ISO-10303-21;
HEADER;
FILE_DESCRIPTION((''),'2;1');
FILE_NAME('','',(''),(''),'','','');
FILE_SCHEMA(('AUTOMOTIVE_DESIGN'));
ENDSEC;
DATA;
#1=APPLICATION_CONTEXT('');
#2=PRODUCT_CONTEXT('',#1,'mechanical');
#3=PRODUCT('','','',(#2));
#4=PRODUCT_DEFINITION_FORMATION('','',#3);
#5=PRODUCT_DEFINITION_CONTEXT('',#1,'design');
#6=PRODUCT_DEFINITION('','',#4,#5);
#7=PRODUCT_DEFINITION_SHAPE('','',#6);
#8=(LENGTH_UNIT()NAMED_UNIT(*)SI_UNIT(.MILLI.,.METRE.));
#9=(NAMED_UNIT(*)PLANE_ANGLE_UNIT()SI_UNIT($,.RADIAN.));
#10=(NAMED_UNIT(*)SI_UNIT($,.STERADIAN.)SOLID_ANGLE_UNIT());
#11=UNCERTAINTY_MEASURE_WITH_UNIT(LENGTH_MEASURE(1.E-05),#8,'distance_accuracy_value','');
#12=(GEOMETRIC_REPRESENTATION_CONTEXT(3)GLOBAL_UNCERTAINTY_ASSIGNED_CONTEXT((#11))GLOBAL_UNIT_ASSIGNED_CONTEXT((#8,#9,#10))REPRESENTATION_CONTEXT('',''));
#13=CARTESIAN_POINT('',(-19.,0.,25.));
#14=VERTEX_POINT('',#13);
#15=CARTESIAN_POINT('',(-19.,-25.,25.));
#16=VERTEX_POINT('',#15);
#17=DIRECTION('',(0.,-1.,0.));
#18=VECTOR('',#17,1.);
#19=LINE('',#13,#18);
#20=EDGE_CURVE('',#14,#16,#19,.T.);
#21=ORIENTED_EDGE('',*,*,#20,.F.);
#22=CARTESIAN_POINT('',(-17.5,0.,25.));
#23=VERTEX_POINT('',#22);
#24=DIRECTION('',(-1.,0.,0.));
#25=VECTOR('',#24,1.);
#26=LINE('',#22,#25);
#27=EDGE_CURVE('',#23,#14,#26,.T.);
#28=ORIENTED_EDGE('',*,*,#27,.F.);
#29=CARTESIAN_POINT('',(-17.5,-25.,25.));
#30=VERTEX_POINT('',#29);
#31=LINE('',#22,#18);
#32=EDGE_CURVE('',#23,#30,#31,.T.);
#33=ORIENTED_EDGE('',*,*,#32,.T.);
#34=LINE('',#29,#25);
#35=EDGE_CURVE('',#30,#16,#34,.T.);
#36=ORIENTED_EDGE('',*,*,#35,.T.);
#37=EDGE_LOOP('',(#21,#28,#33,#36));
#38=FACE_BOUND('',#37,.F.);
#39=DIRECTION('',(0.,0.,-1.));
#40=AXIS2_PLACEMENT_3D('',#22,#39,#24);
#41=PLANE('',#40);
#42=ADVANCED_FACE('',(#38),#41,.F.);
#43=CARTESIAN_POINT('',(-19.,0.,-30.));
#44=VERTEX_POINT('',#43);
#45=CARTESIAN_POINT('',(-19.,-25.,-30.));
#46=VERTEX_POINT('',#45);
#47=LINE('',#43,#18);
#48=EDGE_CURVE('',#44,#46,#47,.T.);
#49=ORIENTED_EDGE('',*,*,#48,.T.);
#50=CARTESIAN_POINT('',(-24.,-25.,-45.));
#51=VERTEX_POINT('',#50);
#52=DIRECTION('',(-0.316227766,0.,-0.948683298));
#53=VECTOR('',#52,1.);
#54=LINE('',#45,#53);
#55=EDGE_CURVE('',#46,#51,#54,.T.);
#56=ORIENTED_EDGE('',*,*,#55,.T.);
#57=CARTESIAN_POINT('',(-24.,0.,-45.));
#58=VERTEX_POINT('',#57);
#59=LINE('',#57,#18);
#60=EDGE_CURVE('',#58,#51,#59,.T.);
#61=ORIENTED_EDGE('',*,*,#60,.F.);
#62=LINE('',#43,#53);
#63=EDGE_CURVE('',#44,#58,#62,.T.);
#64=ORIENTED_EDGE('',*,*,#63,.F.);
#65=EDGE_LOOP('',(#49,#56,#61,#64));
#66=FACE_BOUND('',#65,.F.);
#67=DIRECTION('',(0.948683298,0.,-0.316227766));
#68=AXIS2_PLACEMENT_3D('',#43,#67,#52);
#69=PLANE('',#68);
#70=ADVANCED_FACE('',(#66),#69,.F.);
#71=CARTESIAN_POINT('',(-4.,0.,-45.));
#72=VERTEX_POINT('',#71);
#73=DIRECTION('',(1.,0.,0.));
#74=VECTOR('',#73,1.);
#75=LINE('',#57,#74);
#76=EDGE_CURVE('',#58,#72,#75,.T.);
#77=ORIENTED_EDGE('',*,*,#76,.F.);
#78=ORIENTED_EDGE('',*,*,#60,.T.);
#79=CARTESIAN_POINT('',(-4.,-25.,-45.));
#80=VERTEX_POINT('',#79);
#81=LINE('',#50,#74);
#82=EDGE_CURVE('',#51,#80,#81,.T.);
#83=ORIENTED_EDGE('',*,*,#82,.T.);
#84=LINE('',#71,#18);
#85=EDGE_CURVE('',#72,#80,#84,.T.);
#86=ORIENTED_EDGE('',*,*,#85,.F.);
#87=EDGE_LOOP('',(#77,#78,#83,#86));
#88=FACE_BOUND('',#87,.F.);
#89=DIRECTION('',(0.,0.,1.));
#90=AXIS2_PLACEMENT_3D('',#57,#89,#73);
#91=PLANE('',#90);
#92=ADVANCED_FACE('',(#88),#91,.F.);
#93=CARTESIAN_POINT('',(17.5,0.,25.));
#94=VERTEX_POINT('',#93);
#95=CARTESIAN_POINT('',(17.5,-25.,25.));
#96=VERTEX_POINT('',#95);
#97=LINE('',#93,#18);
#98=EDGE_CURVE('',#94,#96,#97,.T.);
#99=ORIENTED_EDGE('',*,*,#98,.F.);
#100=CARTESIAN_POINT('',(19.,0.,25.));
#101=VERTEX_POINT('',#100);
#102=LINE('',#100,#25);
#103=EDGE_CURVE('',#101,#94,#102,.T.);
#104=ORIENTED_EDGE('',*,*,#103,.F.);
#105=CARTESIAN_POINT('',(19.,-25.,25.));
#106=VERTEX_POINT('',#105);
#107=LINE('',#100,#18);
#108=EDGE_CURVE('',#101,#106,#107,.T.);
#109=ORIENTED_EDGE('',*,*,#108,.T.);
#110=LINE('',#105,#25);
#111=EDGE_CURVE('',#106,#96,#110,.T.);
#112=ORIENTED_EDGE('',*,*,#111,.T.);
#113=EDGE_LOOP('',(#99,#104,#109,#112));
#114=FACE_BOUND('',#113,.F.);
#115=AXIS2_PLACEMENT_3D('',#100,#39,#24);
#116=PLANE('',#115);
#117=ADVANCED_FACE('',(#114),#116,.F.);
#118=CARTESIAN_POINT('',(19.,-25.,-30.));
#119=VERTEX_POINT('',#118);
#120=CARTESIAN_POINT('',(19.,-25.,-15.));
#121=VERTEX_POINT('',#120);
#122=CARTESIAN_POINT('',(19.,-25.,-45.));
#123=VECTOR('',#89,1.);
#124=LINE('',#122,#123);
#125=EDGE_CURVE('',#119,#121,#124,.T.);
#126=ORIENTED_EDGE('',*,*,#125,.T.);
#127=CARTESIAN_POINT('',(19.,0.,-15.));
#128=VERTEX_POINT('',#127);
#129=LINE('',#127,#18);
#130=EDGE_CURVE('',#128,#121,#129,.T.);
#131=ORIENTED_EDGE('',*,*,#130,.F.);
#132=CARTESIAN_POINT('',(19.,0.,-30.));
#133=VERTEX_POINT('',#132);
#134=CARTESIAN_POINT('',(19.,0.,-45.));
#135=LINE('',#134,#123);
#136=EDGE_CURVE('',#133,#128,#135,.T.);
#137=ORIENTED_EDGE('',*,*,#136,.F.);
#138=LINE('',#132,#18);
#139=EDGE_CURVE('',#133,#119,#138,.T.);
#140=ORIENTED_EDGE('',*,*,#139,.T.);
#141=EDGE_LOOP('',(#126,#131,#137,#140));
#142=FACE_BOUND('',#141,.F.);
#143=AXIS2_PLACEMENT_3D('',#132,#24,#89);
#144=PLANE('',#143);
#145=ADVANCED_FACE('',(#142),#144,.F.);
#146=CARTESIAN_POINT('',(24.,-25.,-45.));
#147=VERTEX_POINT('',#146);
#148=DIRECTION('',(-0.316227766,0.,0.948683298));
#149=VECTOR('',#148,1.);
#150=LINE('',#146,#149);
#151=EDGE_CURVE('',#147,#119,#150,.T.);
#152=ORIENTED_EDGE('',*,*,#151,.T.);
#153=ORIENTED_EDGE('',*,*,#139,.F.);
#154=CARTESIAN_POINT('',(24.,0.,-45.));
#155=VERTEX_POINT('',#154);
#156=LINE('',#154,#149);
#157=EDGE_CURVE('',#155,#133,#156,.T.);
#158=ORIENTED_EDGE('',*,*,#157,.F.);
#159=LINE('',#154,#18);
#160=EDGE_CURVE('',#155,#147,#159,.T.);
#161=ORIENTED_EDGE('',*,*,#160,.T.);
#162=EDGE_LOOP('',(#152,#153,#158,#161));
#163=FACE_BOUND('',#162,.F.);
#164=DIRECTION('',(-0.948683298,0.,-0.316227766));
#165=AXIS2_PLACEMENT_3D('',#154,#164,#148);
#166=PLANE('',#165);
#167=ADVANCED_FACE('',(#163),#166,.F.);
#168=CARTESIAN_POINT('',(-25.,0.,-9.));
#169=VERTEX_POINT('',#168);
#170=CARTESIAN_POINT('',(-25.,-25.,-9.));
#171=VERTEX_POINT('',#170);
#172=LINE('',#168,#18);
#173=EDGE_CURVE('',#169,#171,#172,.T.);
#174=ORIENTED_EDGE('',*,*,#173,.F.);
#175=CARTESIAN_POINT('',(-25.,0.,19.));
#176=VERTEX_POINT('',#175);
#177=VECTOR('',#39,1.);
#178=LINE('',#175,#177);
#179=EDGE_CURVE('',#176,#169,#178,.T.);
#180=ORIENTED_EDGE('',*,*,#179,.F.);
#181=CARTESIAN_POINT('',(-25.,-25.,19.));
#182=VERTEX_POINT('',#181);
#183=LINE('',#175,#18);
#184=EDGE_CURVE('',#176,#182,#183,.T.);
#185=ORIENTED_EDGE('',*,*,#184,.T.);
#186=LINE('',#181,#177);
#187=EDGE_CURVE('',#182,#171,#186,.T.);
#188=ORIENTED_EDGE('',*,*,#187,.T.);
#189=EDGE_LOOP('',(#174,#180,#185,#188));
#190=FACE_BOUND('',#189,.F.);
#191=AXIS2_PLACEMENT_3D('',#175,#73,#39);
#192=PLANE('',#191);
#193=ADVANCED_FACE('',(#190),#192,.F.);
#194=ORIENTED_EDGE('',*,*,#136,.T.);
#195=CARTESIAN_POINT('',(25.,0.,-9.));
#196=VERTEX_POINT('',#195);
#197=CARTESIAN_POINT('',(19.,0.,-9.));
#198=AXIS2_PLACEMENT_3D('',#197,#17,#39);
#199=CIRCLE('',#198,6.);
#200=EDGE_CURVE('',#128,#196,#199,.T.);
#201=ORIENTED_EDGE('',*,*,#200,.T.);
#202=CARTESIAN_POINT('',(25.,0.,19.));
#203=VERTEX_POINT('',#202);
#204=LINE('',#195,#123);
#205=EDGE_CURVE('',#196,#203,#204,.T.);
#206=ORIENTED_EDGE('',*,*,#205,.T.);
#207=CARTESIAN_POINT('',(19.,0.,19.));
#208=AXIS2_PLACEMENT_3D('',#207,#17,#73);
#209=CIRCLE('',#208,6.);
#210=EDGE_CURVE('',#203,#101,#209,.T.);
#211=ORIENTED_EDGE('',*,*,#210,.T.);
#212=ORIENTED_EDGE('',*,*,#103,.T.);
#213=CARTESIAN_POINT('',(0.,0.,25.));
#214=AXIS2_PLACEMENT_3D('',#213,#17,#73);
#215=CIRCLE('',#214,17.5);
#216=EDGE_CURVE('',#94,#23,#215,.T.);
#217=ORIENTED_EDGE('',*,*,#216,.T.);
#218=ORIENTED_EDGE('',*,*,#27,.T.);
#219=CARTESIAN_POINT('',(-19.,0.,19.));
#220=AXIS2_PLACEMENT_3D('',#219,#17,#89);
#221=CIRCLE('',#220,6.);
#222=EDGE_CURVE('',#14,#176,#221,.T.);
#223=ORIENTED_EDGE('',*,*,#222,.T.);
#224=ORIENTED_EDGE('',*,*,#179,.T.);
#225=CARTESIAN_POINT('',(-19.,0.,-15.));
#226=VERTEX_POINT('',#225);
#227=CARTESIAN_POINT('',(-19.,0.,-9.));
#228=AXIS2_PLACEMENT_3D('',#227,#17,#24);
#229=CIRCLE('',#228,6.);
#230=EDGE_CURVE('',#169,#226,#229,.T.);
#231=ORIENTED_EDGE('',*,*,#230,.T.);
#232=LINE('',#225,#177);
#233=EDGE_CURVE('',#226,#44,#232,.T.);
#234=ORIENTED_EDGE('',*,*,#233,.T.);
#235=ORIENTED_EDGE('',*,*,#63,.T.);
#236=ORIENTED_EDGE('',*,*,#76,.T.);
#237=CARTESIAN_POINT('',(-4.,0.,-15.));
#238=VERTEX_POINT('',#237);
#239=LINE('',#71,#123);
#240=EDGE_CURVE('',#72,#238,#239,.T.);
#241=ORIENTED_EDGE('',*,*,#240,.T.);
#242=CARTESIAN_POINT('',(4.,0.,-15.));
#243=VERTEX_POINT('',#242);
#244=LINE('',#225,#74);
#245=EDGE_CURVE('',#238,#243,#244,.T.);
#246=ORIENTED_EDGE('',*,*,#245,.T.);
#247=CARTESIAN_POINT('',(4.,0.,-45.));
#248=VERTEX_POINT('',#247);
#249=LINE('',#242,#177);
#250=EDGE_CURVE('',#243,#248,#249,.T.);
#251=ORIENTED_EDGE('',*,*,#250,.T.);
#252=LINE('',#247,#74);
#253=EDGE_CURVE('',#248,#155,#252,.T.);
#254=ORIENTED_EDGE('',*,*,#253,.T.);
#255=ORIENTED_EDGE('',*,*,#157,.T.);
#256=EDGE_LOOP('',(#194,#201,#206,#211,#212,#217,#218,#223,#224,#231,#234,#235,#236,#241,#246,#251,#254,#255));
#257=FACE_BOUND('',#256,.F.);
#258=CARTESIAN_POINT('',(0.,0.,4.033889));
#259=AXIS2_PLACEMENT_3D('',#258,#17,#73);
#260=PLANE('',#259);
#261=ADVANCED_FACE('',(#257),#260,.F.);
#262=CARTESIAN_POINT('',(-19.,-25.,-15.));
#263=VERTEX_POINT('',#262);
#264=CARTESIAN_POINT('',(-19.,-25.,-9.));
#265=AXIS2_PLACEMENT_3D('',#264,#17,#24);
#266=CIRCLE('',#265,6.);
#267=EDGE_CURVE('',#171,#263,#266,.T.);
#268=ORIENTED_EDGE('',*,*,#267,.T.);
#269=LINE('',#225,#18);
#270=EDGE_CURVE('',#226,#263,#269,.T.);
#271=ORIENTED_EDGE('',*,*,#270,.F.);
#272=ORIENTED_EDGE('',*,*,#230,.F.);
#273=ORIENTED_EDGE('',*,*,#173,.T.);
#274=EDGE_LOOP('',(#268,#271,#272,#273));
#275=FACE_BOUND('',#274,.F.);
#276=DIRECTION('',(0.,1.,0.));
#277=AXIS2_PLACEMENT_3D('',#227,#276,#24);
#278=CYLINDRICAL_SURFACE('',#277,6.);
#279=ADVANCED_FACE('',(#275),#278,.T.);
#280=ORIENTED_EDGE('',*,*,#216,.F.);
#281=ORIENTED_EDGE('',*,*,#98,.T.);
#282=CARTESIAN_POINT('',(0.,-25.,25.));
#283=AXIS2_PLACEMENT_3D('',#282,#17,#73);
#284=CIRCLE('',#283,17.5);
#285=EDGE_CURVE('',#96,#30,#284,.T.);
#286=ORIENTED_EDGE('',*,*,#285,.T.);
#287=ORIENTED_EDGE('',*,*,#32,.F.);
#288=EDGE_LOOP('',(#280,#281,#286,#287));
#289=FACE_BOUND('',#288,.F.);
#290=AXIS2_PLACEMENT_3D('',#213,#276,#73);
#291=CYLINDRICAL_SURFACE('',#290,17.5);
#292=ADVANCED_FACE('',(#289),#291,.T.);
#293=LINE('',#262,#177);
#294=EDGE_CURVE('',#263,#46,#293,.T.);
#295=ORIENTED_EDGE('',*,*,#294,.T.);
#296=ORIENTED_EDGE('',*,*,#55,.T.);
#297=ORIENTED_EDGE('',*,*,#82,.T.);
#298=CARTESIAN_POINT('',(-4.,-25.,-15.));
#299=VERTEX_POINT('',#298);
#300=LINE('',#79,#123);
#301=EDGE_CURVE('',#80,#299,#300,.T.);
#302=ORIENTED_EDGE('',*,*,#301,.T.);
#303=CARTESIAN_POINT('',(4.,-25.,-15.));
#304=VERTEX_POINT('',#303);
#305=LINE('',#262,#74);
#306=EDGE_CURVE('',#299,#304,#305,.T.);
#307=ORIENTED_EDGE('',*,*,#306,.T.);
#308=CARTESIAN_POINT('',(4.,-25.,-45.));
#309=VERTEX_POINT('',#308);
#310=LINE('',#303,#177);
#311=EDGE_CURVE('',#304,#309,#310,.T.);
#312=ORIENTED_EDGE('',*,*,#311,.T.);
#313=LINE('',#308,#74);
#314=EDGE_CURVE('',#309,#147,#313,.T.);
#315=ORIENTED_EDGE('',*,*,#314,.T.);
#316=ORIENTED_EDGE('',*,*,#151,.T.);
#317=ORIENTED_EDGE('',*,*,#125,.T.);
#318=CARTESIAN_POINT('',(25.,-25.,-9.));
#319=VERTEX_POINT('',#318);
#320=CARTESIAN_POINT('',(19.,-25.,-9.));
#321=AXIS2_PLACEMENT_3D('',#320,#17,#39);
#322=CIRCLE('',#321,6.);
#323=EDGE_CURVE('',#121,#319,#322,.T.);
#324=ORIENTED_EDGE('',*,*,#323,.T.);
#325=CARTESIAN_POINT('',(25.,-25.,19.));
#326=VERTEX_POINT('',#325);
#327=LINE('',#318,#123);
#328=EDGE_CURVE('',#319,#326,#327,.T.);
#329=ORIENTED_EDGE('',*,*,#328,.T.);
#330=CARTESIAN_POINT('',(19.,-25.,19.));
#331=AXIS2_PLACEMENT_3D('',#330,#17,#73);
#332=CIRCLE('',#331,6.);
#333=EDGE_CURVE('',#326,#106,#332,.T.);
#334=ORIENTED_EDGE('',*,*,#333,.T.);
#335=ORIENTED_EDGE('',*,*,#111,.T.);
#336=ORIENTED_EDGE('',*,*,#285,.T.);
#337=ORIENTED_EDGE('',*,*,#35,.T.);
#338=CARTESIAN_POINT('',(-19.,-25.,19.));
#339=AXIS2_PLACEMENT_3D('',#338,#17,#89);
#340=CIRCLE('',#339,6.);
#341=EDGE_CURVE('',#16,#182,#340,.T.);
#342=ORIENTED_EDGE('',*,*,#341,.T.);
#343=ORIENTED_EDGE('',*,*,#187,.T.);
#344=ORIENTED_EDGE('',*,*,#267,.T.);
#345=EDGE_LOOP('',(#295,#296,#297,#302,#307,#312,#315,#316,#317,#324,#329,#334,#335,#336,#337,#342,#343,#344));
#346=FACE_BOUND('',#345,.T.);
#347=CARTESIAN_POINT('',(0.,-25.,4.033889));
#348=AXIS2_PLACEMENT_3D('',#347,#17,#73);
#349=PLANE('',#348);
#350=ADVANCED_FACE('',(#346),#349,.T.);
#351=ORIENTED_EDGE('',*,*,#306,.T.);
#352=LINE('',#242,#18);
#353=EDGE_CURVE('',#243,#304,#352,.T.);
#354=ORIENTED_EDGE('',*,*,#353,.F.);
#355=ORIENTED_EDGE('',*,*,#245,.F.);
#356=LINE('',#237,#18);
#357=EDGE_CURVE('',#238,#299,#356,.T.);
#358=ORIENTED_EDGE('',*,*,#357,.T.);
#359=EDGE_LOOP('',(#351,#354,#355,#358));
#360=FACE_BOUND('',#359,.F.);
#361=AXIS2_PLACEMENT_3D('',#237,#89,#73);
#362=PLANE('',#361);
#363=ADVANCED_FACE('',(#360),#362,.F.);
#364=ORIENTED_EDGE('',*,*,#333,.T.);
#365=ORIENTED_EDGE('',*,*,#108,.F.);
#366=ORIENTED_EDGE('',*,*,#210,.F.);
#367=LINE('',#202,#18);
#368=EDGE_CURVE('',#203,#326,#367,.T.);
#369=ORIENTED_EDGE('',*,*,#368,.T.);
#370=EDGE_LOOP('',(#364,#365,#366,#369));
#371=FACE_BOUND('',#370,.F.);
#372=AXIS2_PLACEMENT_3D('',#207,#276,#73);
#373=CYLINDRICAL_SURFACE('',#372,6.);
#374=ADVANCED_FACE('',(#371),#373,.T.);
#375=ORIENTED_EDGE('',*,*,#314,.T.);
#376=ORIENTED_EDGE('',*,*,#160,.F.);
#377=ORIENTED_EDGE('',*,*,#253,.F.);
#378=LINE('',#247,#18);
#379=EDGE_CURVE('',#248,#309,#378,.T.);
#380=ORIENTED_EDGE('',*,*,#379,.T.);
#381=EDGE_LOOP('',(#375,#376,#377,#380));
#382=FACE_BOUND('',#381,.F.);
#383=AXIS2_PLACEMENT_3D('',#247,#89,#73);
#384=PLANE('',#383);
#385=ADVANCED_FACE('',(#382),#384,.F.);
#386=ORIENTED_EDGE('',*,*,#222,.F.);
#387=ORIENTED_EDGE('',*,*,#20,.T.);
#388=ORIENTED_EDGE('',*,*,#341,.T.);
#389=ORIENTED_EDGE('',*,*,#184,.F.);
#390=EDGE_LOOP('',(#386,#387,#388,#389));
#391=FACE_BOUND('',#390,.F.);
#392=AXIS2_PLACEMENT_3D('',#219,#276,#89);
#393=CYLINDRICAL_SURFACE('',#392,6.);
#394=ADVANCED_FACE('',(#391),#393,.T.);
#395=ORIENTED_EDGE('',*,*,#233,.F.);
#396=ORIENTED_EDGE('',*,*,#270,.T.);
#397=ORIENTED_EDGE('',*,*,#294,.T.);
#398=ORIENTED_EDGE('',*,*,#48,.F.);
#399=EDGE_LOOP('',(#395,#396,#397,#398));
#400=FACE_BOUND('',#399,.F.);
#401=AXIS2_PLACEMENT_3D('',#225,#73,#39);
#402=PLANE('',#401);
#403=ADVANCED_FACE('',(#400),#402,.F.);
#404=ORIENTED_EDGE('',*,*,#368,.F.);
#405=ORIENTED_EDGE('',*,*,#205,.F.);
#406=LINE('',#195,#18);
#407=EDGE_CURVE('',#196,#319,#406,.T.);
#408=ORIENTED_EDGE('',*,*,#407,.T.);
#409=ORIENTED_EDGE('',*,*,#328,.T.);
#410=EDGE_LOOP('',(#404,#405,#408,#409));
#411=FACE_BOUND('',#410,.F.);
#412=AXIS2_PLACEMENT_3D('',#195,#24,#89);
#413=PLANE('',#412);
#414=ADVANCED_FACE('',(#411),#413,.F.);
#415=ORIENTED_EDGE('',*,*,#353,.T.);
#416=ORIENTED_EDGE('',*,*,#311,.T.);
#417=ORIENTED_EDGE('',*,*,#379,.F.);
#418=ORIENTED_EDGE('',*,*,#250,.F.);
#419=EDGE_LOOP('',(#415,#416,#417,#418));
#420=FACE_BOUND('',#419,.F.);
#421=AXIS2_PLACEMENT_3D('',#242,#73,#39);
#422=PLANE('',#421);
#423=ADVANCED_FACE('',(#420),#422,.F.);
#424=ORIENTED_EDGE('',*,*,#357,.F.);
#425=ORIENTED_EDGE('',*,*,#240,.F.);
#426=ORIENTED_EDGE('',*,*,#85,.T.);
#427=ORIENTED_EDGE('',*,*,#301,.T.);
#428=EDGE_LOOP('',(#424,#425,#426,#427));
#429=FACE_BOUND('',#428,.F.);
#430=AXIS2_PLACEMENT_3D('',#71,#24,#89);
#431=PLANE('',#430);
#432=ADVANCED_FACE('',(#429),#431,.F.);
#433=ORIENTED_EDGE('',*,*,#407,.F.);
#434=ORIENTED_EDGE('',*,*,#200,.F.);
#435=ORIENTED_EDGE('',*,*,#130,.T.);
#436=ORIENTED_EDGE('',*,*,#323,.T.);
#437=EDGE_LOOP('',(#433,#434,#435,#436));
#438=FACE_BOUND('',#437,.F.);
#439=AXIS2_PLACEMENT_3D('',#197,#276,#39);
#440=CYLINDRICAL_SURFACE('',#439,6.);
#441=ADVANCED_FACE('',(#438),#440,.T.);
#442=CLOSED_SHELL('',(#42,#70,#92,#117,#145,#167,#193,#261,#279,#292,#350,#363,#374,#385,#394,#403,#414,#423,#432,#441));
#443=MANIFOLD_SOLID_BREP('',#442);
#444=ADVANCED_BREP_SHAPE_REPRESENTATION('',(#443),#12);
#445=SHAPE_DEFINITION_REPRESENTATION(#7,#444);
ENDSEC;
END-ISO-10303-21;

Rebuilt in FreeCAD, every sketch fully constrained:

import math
import FreeCAD as App
import Part
import Sketcher

V = App.Vector
Q = App.Units.Quantity

doc = App.newDocument("Part")
params = doc.addObject("Spreadsheet::Sheet", "Params")
for row, (alias, value) in enumerate([
    ("sketch1_radius", "6 mm"),
    ("sketch1_radius2", "17.5 mm"),
    ("sketch1_width", "20 mm"),
    ("sketch1_width2", "8 mm"),
    ("sketch1_height", "15 mm"),
    ("pad1_length", "25 mm"),
], start=1):
    params.set(f"A{row}", alias)
    params.set(f"B{row}", "=" + value)
    params.setAlias(f"B{row}", alias)

body = doc.addObject("PartDesign::Body", "Body")

sketch1 = body.newObject("Sketcher::SketchObject", "Sketch")
sketch1.AttachmentSupport = (doc.getObject("XZ_Plane"), [""])
sketch1.MapMode = "FlatFace"
sketch1.addGeometry(Part.ArcOfCircle(Part.Circle(V(-19, -9, 0), V(0, 0, 1), 6), math.radians(180), math.radians(270)), False)
sketch1.addGeometry(Part.LineSegment(V(-19, -15, 0), V(-19, -30, 0)), False)
sketch1.addGeometry(Part.LineSegment(V(-19, -30, 0), V(-24, -45, 0)), False)
sketch1.addGeometry(Part.LineSegment(V(-24, -45, 0), V(-4, -45, 0)), False)
sketch1.addGeometry(Part.LineSegment(V(-4, -45, 0), V(-4, -15, 0)), False)
sketch1.addGeometry(Part.LineSegment(V(-4, -15, 0), V(4, -15, 0)), False)
sketch1.addGeometry(Part.LineSegment(V(4, -15, 0), V(4, -45, 0)), False)
sketch1.addGeometry(Part.LineSegment(V(4, -45, 0), V(24, -45, 0)), False)
sketch1.addGeometry(Part.LineSegment(V(24, -45, 0), V(19, -30, 0)), False)
sketch1.addGeometry(Part.LineSegment(V(19, -30, 0), V(19, -15, 0)), False)
sketch1.addGeometry(Part.ArcOfCircle(Part.Circle(V(19, -9, 0), V(0, 0, 1), 6), math.radians(-90), math.radians(0)), False)
sketch1.addGeometry(Part.LineSegment(V(25, -9, 0), V(25, 19, 0)), False)
sketch1.addGeometry(Part.ArcOfCircle(Part.Circle(V(19, 19, 0), V(0, 0, 1), 6), math.radians(0), math.radians(90)), False)
sketch1.addGeometry(Part.LineSegment(V(19, 25, 0), V(17.5, 25, 0)), False)
sketch1.addGeometry(Part.ArcOfCircle(Part.Circle(V(0, 25, 0), V(0, 0, 1), 17.5), math.radians(0), math.radians(180)), False)
sketch1.addGeometry(Part.LineSegment(V(-17.5, 25, 0), V(-19, 25, 0)), False)
sketch1.addGeometry(Part.ArcOfCircle(Part.Circle(V(-19, 19, 0), V(0, 0, 1), 6), math.radians(90), math.radians(180)), False)
sketch1.addGeometry(Part.LineSegment(V(-25, 19, 0), V(-25, -9, 0)), False)
sketch1.addConstraint(Sketcher.Constraint("Coincident", 0, 2, 1, 1))
sketch1.addConstraint(Sketcher.Constraint("Coincident", 1, 2, 2, 1))
sketch1.addConstraint(Sketcher.Constraint("Coincident", 2, 2, 3, 1))
sketch1.addConstraint(Sketcher.Constraint("Coincident", 3, 2, 4, 1))
sketch1.addConstraint(Sketcher.Constraint("Coincident", 4, 2, 5, 1))
sketch1.addConstraint(Sketcher.Constraint("Coincident", 5, 2, 6, 1))
sketch1.addConstraint(Sketcher.Constraint("Coincident", 6, 2, 7, 1))
sketch1.addConstraint(Sketcher.Constraint("Coincident", 7, 2, 8, 1))
sketch1.addConstraint(Sketcher.Constraint("Coincident", 8, 2, 9, 1))
sketch1.addConstraint(Sketcher.Constraint("Coincident", 9, 2, 10, 1))
sketch1.addConstraint(Sketcher.Constraint("Tangent", 10, 2, 11, 1))
sketch1.addConstraint(Sketcher.Constraint("Tangent", 11, 2, 12, 1))
sketch1.addConstraint(Sketcher.Constraint("Tangent", 12, 2, 13, 1))
sketch1.addConstraint(Sketcher.Constraint("Coincident", 13, 2, 14, 1))
sketch1.addConstraint(Sketcher.Constraint("Coincident", 14, 2, 15, 1))
sketch1.addConstraint(Sketcher.Constraint("Tangent", 15, 2, 16, 1))
sketch1.addConstraint(Sketcher.Constraint("Tangent", 16, 2, 17, 1))
sketch1.addConstraint(Sketcher.Constraint("Tangent", 17, 2, 0, 1))
sketch1.addConstraint(Sketcher.Constraint("Vertical", 1))
sketch1.addConstraint(Sketcher.Constraint("Horizontal", 3))
sketch1.addConstraint(Sketcher.Constraint("Vertical", 4))
sketch1.addConstraint(Sketcher.Constraint("Horizontal", 5))
sketch1.addConstraint(Sketcher.Constraint("Vertical", 6))
sketch1.addConstraint(Sketcher.Constraint("Horizontal", 7))
sketch1.addConstraint(Sketcher.Constraint("Vertical", 9))
sketch1.addConstraint(Sketcher.Constraint("Vertical", 11))
sketch1.addConstraint(Sketcher.Constraint("Horizontal", 13))
sketch1.addConstraint(Sketcher.Constraint("Horizontal", 15))
sketch1.addConstraint(Sketcher.Constraint("Vertical", 17))
sketch1.addConstraint(Sketcher.Constraint("Equal", 0, 10))
sketch1.addConstraint(Sketcher.Constraint("Equal", 10, 12))
sketch1.addConstraint(Sketcher.Constraint("Equal", 12, 16))
sketch1.addConstraint(Sketcher.Constraint("Symmetric", 0, 3, 10, 3, -2))
sketch1.addConstraint(Sketcher.Constraint("Symmetric", 3, 2, 6, 2, -2))
sketch1.addConstraint(Sketcher.Constraint("Symmetric", 1, 2, 8, 2, -2))
sketch1.addConstraint(Sketcher.Constraint("Symmetric", 13, 2, 14, 2, -2))
sketch1.addConstraint(Sketcher.Constraint("Horizontal", 0, 2, 4, 2))
sketch1.addConstraint(Sketcher.Constraint("Horizontal", 14, 3, 12, 2))
sketch1.addConstraint(Sketcher.Constraint("Vertical", 16, 3, 0, 2))
sketch1.addConstraint(Sketcher.Constraint("Equal", 3, 7))
sketch1.addConstraint(Sketcher.Constraint("Radius", 0, Q("6 mm")))
sketch1.addConstraint(Sketcher.Constraint("Radius", 14, Q("17.5 mm")))
sketch1.addConstraint(Sketcher.Constraint("DistanceX", 3, 1, 3, 2, Q("20 mm")))
sketch1.addConstraint(Sketcher.Constraint("DistanceX", 5, 1, 5, 2, Q("8 mm")))
sketch1.addConstraint(Sketcher.Constraint("DistanceY", 1, 2, 1, 1, Q("15 mm")))
sketch1.addConstraint(Sketcher.Constraint("DistanceY", 4, 1, 4, 2, Q("30 mm")))
sketch1.addConstraint(Sketcher.Constraint("DistanceY", 11, 1, 11, 2, Q("28 mm")))
sketch1.addConstraint(Sketcher.Constraint("DistanceX", 13, 2, 13, 1, Q("1.5 mm")))
sketch1.addConstraint(Sketcher.Constraint("DistanceY", 0, 3, -1, 1, Q("9 mm")))
sketch1.setExpression("Constraints[40]", "Params.sketch1_radius")
sketch1.setExpression("Constraints[41]", "Params.sketch1_radius2")
sketch1.setExpression("Constraints[42]", "Params.sketch1_width")
sketch1.setExpression("Constraints[43]", "Params.sketch1_width2")
sketch1.setExpression("Constraints[44]", "Params.sketch1_height")
pad1 = body.newObject("PartDesign::Pad", "Pad")
pad1.Profile = sketch1
pad1.setExpression("Length", "Params.pad1_length")

doc.recompute()
